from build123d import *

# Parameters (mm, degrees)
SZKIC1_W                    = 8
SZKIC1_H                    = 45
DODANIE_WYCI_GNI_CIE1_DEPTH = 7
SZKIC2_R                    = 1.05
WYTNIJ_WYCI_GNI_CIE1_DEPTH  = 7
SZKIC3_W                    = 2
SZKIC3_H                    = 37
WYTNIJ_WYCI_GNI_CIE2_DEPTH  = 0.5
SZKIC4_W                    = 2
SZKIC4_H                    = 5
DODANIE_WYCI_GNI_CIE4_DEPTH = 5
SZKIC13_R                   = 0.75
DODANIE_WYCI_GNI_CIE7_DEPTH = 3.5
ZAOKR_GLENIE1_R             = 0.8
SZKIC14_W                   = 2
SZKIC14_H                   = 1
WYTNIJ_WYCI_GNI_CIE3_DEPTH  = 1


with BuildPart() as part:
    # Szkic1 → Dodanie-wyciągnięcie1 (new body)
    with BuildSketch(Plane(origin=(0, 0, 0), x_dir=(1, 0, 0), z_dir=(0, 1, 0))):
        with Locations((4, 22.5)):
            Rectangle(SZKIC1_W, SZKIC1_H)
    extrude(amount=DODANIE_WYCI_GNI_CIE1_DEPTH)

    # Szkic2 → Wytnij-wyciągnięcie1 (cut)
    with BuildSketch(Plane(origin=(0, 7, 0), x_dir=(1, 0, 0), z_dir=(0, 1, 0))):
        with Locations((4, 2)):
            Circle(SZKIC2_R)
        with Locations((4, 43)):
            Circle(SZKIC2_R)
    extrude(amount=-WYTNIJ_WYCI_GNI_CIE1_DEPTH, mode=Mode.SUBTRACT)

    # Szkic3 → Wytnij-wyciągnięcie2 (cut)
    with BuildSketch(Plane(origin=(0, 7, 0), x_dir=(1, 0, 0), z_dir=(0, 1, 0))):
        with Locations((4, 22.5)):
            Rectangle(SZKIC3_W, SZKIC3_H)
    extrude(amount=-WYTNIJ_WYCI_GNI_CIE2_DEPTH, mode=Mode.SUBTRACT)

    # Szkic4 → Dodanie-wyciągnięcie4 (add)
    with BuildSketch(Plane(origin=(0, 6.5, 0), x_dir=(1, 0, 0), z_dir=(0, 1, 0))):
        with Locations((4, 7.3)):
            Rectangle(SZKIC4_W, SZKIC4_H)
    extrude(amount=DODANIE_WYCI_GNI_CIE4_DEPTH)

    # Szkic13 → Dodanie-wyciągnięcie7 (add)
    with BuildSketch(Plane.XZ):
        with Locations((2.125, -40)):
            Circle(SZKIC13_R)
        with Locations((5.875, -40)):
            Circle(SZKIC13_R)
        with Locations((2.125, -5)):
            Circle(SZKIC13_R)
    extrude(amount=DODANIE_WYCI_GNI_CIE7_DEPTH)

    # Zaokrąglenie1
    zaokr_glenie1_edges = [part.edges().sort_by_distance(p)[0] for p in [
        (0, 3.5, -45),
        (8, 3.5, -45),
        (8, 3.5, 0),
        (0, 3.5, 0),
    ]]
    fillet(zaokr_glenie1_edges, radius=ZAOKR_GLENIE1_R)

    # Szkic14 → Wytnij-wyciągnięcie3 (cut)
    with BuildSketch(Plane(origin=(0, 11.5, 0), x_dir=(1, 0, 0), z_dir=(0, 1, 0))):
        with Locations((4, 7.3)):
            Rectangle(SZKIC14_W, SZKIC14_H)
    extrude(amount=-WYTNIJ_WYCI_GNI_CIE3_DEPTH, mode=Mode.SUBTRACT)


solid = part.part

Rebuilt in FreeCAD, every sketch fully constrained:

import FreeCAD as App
import Part
import Sketcher


def edges_at(feature, points):
    """Names of the edges that pass closest to the given points."""
    edges = feature.Shape.Edges
    near = lambda p: min(range(len(edges)), key=lambda i: edges[i].distToShape(Part.Vertex(*p))[0])
    return sorted({f"Edge{near(p) + 1}" for p in points})

doc = App.newDocument("Part")
body = doc.addObject("PartDesign::Body", "Body")

# Sketch on XZ plane
sketch1 = body.newObject("Sketcher::SketchObject", "Sketch")
sketch1.AttachmentSupport = (doc.getObject("XZ_Plane"), [""])
sketch1.MapMode = "FlatFace"
sketch1.addGeometry([
    Part.LineSegment(App.Vector(0, -45, 0), App.Vector(0, 0, 0)),
    Part.LineSegment(App.Vector(0, 0, 0), App.Vector(8, 0, 0)),
    Part.LineSegment(App.Vector(8, 0, 0), App.Vector(8, -45, 0)),
    Part.LineSegment(App.Vector(8, -45, 0), App.Vector(0, -45, 0)),
], False)
sketch1.addConstraint([
    Sketcher.Constraint("Coincident", 0, 2, 1, 1),
    Sketcher.Constraint("Coincident", 1, 2, 2, 1),
    Sketcher.Constraint("Coincident", 2, 2, 3, 1),
    Sketcher.Constraint("Coincident", 3, 2, 0, 1),
    Sketcher.Constraint("Vertical", 0),
    Sketcher.Constraint("Horizontal", 1),
    Sketcher.Constraint("Vertical", 2),
    Sketcher.Constraint("Horizontal", 3),
    Sketcher.Constraint("Coincident", 0, 2, -1, 1),
    Sketcher.Constraint("DistanceX", 1, 1, 1, 2, 8.0),
    Sketcher.Constraint("DistanceY", 0, 1, 0, 2, 45.0),
])
pad1 = body.newObject("PartDesign::Pad", "Pad")
pad1.Profile = sketch1
pad1.Length = 7
pad1.Reversed = True

# Sketch on XZ plane
sketch2 = body.newObject("Sketcher::SketchObject", "Sketch001")
sketch2.AttachmentSupport = (doc.getObject("XZ_Plane"), [""])
sketch2.MapMode = "FlatFace"
sketch2.AttachmentOffset = App.Placement(App.Vector(0, 0, -7), App.Rotation())
sketch2.addGeometry([
    Part.Circle(App.Vector(4, -2, 0), App.Vector(0, 0, 1), 1.1),
    Part.Circle(App.Vector(4, -43, 0), App.Vector(0, 0, 1), 1.1),
], False)
sketch2.addConstraint([
    Sketcher.Constraint("Equal", 0, 1),
    Sketcher.Constraint("Vertical", 0, 3, 1, 3),
    Sketcher.Constraint("Diameter", 0, 2.1),
    Sketcher.Constraint("DistanceX", -1, 1, 0, 3, 4.0),
    Sketcher.Constraint("DistanceY", 0, 3, -1, 1, 2.0),
    Sketcher.Constraint("DistanceY", 1, 3, -1, 1, 43.0),
])
pocket1 = body.newObject("PartDesign::Pocket", "Pocket")
pocket1.Profile = sketch2
pocket1.Length = 7
pocket1.Reversed = True

# Sketch on XZ plane
sketch3 = body.newObject("Sketcher::SketchObject", "Sketch002")
sketch3.AttachmentSupport = (doc.getObject("XZ_Plane"), [""])
sketch3.MapMode = "FlatFace"
sketch3.AttachmentOffset = App.Placement(App.Vector(0, 0, -7), App.Rotation())
sketch3.addGeometry([
    Part.LineSegment(App.Vector(3, -41, 0), App.Vector(3, -4, 0)),
    Part.LineSegment(App.Vector(3, -4, 0), App.Vector(5, -4, 0)),
    Part.LineSegment(App.Vector(5, -4, 0), App.Vector(5, -41, 0)),
    Part.LineSegment(App.Vector(5, -41, 0), App.Vector(3, -41, 0)),
], False)
sketch3.addConstraint([
    Sketcher.Constraint("Coincident", 0, 2, 1, 1),
    Sketcher.Constraint("Coincident", 1, 2, 2, 1),
    Sketcher.Constraint("Coincident", 2, 2, 3, 1),
    Sketcher.Constraint("Coincident", 3, 2, 0, 1),
    Sketcher.Constraint("Vertical", 0),
    Sketcher.Constraint("Horizontal", 1),
    Sketcher.Constraint("Vertical", 2),
    Sketcher.Constraint("Horizontal", 3),
    Sketcher.Constraint("DistanceX", 1, 1, 1, 2, 2.0),
    Sketcher.Constraint("DistanceY", 0, 1, 0, 2, 37.0),
    Sketcher.Constraint("DistanceX", -1, 1, 0, 2, 3.0),
    Sketcher.Constraint("DistanceY", 0, 2, -1, 1, 4.0),
])
pocket2 = body.newObject("PartDesign::Pocket", "Pocket001")
pocket2.Profile = sketch3
pocket2.Length = 0.5
pocket2.Reversed = True

# Sketch on XZ plane
sketch4 = body.newObject("Sketcher::SketchObject", "Sketch003")
sketch4.AttachmentSupport = (doc.getObject("XZ_Plane"), [""])
sketch4.MapMode = "FlatFace"
sketch4.AttachmentOffset = App.Placement(App.Vector(0, 0, -6.5), App.Rotation())
sketch4.addGeometry([
    Part.LineSegment(App.Vector(3, -9.8, 0), App.Vector(3, -4.8, 0)),
    Part.LineSegment(App.Vector(3, -4.8, 0), App.Vector(5, -4.8, 0)),
    Part.LineSegment(App.Vector(5, -4.8, 0), App.Vector(5, -9.8, 0)),
    Part.LineSegment(App.Vector(5, -9.8, 0), App.Vector(3, -9.8, 0)),
], False)
sketch4.addConstraint([
    Sketcher.Constraint("Coincident", 0, 2, 1, 1),
    Sketcher.Constraint("Coincident", 1, 2, 2, 1),
    Sketcher.Constraint("Coincident", 2, 2, 3, 1),
    Sketcher.Constraint("Coincident", 3, 2, 0, 1),
    Sketcher.Constraint("Vertical", 0),
    Sketcher.Constraint("Horizontal", 1),
    Sketcher.Constraint("Vertical", 2),
    Sketcher.Constraint("Horizontal", 3),
    Sketcher.Constraint("DistanceX", 1, 1, 1, 2, 2.0),
    Sketcher.Constraint("DistanceY", 0, 1, 0, 2, 5.0),
    Sketcher.Constraint("DistanceX", -1, 1, 0, 2, 3.0),
    Sketcher.Constraint("DistanceY", 0, 2, -1, 1, 4.8),
])
pad2 = body.newObject("PartDesign::Pad", "Pad001")
pad2.Profile = sketch4
pad2.Length = 5
pad2.Reversed = True

# Sketch on XZ plane
sketch5 = body.newObject("Sketcher::SketchObject", "Sketch004")
sketch5.AttachmentSupport = (doc.getObject("XZ_Plane"), [""])
sketch5.MapMode = "FlatFace"
sketch5.addGeometry([
    Part.Circle(App.Vector(2.1, -40, 0), App.Vector(0, 0, 1), 0.8),
    Part.Circle(App.Vector(5.9, -40, 0), App.Vector(0, 0, 1), 0.8),
    Part.Circle(App.Vector(2.1, -5, 0), App.Vector(0, 0, 1), 0.8),
], False)
sketch5.addConstraint([
    Sketcher.Constraint("Equal", 0, 1),
    Sketcher.Constraint("Equal", 1, 2),
    Sketcher.Constraint("Horizontal", 0, 3, 1, 3),
    Sketcher.Constraint("Vertical", 0, 3, 2, 3),
    Sketcher.Constraint("Diameter", 0, 1.5),
    Sketcher.Constraint("DistanceY", 0, 3, -1, 1, 40.0),
    Sketcher.Constraint("DistanceY", 2, 3, -1, 1, 5.0),
    Sketcher.Constraint("DistanceX", 0, 3, 1, 3, 3.75),
    Sketcher.Constraint("DistanceX", -1, 1, 0, 3, 2.125),
])
pad3 = body.newObject("PartDesign::Pad", "Pad002")
pad3.Profile = sketch5
pad3.Length = 3.5
doc.recompute()

fillet = body.newObject("PartDesign::Fillet", "Fillet")
fillet.Base = (pad3, edges_at(pad3, [
    (0, 3.5, -45),
    (8, 3.5, -45),
    (8, 3.5, 0),
    (0, 3.5, 0),
]))
fillet.Radius = 0.8

# Sketch on XZ plane
sketch6 = body.newObject("Sketcher::SketchObject", "Sketch005")
sketch6.AttachmentSupport = (doc.getObject("XZ_Plane"), [""])
sketch6.MapMode = "FlatFace"
sketch6.AttachmentOffset = App.Placement(App.Vector(0, 0, -11.5), App.Rotation())
sketch6.addGeometry([
    Part.LineSegment(App.Vector(3, -7.8, 0), App.Vector(3, -6.8, 0)),
    Part.LineSegment(App.Vector(3, -6.8, 0), App.Vector(5, -6.8, 0)),
    Part.LineSegment(App.Vector(5, -6.8, 0), App.Vector(5, -7.8, 0)),
    Part.LineSegment(App.Vector(5, -7.8, 0), App.Vector(3, -7.8, 0)),
], False)
sketch6.addConstraint([
    Sketcher.Constraint("Coincident", 0, 2, 1, 1),
    Sketcher.Constraint("Coincident", 1, 2, 2, 1),
    Sketcher.Constraint("Coincident", 2, 2, 3, 1),
    Sketcher.Constraint("Coincident", 3, 2, 0, 1),
    Sketcher.Constraint("Vertical", 0),
    Sketcher.Constraint("Horizontal", 1),
    Sketcher.Constraint("Vertical", 2),
    Sketcher.Constraint("Horizontal", 3),
    Sketcher.Constraint("DistanceX", 1, 1, 1, 2, 2.0),
    Sketcher.Constraint("DistanceY", 0, 1, 0, 2, 1.0),
    Sketcher.Constraint("DistanceX", -1, 1, 0, 2, 3.0),
    Sketcher.Constraint("DistanceY", 0, 2, -1, 1, 6.8),
])
pocket3 = body.newObject("PartDesign::Pocket", "Pocket002")
pocket3.Profile = sketch6
pocket3.Length = 1
pocket3.Reversed = True

doc.recompute()
